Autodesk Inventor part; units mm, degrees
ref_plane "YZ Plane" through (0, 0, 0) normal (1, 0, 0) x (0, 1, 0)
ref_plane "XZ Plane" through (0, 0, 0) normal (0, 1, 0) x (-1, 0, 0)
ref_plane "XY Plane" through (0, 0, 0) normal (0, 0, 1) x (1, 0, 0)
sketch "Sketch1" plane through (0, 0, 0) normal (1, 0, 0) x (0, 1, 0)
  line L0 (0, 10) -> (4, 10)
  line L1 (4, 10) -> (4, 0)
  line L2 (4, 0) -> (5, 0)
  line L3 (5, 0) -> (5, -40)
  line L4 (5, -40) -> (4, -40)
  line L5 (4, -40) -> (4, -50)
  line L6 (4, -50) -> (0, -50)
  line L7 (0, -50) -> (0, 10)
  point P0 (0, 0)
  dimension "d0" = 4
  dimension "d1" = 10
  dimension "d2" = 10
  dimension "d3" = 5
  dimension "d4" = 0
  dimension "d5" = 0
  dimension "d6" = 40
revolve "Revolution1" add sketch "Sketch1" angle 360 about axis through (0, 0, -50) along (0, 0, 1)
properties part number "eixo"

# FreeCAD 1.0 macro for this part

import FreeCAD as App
import Part
import Sketcher
from FreeCAD import Vector

doc = App.newDocument("Part")
params = doc.addObject("Spreadsheet::Sheet", "Params")
for row, (alias, value) in enumerate([
    ("sketch1_width", "4 mm"),
    ("sketch1_height", "10 mm"),
    ("sketch1_height2", "40 mm"),
    ("revolution_angle", "360 deg"),
], start=1):
    params.set(f"A{row}", alias)
    params.set(f"B{row}", "=" + value)
    params.setAlias(f"B{row}", alias)

body = doc.addObject("PartDesign::Body", "Body")

# Sketch on YZ plane
sketch1 = body.newObject("Sketcher::SketchObject", "Sketch")
sketch1.AttachmentSupport = (doc.getObject("YZ_Plane"), [""])
sketch1.MapMode = "FlatFace"
sketch1.addGeometry([
    Part.LineSegment(Vector(4, 10, 0), Vector(0, 10, 0)),  # 0
    Part.LineSegment(Vector(0, 10, 0), Vector(0, -50, 0)),  # 1
    Part.LineSegment(Vector(0, -50, 0), Vector(4, -50, 0)),  # 2
    Part.LineSegment(Vector(4, -50, 0), Vector(4, -40, 0)),  # 3
    Part.LineSegment(Vector(4, -40, 0), Vector(5, -40, 0)),  # 4
    Part.LineSegment(Vector(5, -40, 0), Vector(5, 0, 0)),  # 5
    Part.LineSegment(Vector(5, 0, 0), Vector(4, 0, 0)),  # 6
    Part.LineSegment(Vector(4, 0, 0), Vector(4, 10, 0)),  # 7
], False)
sketch1.addConstraint([
    Sketcher.Constraint("Coincident", 0, 2, 1, 1),
    Sketcher.Constraint("Coincident", 1, 2, 2, 1),
    Sketcher.Constraint("Coincident", 2, 2, 3, 1),
    Sketcher.Constraint("Coincident", 3, 2, 4, 1),
    Sketcher.Constraint("Coincident", 4, 2, 5, 1),
    Sketcher.Constraint("Coincident", 5, 2, 6, 1),
    Sketcher.Constraint("Coincident", 6, 2, 7, 1),
    Sketcher.Constraint("Coincident", 7, 2, 0, 1),
    Sketcher.Constraint("Horizontal", 0),
    Sketcher.Constraint("Vertical", 1),
    Sketcher.Constraint("Horizontal", 2),
    Sketcher.Constraint("Vertical", 3),
    Sketcher.Constraint("Horizontal", 4),
    Sketcher.Constraint("Vertical", 5),
    Sketcher.Constraint("Horizontal", 6),
    Sketcher.Constraint("Vertical", 7),
    Sketcher.Constraint("PointOnObject", 0, 2, -2),
    Sketcher.Constraint("PointOnObject", 5, 2, -1),
    Sketcher.Constraint("Vertical", 3, 2, 6, 2),
    Sketcher.Constraint("Equal", 3, 7),
    Sketcher.Constraint("DistanceX", 0, 2, 0, 1, 4.0),
    Sketcher.Constraint("DistanceY", 3, 1, 3, 2, 10.0),
    Sketcher.Constraint("DistanceY", 5, 1, 5, 2, 40.0),
    Sketcher.Constraint("DistanceX", -1, 1, 4, 2, 5.0),
])
sketch1.setExpression("Constraints[20]", "Params.sketch1_width")
sketch1.setExpression("Constraints[21]", "Params.sketch1_height")
sketch1.setExpression("Constraints[22]", "Params.sketch1_height2")
revolution = body.newObject("PartDesign::Revolution", "Revolution")
revolution.Profile = sketch1
revolution.ReferenceAxis = (sketch1, ["V_Axis"])
revolution.setExpression("Angle", "Params.revolution_angle")

doc.recompute()
